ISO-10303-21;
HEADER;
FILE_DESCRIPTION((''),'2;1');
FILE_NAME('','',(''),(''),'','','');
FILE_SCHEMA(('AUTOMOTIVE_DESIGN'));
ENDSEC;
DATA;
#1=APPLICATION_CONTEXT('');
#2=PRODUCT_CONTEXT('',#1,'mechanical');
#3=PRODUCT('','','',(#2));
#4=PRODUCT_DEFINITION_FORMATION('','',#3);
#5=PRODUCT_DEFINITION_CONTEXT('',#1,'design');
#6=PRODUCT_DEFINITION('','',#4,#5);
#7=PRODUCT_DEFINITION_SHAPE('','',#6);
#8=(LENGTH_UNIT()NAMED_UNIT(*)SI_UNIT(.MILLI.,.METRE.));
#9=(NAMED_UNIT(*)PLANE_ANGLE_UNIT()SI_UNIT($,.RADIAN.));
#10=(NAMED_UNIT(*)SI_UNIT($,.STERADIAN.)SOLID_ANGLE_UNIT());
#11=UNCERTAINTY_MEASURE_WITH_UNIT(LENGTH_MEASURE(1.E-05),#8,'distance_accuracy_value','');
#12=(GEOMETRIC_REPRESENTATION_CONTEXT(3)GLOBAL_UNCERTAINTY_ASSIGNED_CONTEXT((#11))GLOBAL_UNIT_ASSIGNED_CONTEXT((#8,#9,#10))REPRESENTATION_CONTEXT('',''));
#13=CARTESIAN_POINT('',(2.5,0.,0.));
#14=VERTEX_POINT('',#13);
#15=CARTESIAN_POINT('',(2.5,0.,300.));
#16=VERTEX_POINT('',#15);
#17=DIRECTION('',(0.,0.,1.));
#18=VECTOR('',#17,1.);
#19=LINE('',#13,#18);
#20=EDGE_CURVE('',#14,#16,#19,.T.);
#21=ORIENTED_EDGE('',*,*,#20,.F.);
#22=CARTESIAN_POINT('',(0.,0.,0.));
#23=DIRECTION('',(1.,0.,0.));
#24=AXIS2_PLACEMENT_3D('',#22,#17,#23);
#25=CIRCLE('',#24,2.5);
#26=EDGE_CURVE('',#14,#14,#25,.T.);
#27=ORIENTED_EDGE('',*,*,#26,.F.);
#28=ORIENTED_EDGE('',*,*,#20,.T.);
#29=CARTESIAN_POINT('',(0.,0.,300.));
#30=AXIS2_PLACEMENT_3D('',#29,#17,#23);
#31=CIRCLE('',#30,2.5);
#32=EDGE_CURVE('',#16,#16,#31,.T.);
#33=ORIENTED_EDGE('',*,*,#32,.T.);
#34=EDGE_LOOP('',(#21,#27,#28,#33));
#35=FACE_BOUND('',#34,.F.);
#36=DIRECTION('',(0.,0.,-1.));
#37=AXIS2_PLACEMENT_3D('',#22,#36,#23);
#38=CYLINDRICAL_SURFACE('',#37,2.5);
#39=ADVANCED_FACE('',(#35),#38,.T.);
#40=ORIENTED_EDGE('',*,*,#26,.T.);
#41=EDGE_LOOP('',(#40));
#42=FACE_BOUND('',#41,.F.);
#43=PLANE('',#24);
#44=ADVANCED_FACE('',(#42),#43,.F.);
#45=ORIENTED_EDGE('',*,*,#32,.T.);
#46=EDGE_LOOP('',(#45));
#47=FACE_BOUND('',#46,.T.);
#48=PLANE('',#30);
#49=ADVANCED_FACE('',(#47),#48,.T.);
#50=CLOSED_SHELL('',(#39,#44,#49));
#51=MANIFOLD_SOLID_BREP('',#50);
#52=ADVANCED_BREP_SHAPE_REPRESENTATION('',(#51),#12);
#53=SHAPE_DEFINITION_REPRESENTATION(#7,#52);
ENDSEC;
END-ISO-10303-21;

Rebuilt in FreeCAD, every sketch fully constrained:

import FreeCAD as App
import Part
import Sketcher

doc = App.newDocument("Part")
body = doc.addObject("PartDesign::Body", "Body")

# Sketch on XY plane
sketch1 = doc.addObject("Sketcher::SketchObject", "Sketch")
body.addObject(sketch1)
sketch1.AttachmentSupport = (doc.XY_Plane, [""])
sketch1.MapMode = "FlatFace"
sketch1.addGeometry(Part.Circle(App.Vector(0, 0, 0), App.Vector(0, 0, 1), 2.5), False)
sketch1.addConstraint(Sketcher.Constraint("Coincident", 0, 3, -1, 1))
sketch1.addConstraint(Sketcher.Constraint("Diameter", 0, 5.0))
pad1 = doc.addObject("PartDesign::Pad", "Pad")
body.addObject(pad1)
pad1.Profile = sketch1
pad1.Length = 300

doc.recompute()
